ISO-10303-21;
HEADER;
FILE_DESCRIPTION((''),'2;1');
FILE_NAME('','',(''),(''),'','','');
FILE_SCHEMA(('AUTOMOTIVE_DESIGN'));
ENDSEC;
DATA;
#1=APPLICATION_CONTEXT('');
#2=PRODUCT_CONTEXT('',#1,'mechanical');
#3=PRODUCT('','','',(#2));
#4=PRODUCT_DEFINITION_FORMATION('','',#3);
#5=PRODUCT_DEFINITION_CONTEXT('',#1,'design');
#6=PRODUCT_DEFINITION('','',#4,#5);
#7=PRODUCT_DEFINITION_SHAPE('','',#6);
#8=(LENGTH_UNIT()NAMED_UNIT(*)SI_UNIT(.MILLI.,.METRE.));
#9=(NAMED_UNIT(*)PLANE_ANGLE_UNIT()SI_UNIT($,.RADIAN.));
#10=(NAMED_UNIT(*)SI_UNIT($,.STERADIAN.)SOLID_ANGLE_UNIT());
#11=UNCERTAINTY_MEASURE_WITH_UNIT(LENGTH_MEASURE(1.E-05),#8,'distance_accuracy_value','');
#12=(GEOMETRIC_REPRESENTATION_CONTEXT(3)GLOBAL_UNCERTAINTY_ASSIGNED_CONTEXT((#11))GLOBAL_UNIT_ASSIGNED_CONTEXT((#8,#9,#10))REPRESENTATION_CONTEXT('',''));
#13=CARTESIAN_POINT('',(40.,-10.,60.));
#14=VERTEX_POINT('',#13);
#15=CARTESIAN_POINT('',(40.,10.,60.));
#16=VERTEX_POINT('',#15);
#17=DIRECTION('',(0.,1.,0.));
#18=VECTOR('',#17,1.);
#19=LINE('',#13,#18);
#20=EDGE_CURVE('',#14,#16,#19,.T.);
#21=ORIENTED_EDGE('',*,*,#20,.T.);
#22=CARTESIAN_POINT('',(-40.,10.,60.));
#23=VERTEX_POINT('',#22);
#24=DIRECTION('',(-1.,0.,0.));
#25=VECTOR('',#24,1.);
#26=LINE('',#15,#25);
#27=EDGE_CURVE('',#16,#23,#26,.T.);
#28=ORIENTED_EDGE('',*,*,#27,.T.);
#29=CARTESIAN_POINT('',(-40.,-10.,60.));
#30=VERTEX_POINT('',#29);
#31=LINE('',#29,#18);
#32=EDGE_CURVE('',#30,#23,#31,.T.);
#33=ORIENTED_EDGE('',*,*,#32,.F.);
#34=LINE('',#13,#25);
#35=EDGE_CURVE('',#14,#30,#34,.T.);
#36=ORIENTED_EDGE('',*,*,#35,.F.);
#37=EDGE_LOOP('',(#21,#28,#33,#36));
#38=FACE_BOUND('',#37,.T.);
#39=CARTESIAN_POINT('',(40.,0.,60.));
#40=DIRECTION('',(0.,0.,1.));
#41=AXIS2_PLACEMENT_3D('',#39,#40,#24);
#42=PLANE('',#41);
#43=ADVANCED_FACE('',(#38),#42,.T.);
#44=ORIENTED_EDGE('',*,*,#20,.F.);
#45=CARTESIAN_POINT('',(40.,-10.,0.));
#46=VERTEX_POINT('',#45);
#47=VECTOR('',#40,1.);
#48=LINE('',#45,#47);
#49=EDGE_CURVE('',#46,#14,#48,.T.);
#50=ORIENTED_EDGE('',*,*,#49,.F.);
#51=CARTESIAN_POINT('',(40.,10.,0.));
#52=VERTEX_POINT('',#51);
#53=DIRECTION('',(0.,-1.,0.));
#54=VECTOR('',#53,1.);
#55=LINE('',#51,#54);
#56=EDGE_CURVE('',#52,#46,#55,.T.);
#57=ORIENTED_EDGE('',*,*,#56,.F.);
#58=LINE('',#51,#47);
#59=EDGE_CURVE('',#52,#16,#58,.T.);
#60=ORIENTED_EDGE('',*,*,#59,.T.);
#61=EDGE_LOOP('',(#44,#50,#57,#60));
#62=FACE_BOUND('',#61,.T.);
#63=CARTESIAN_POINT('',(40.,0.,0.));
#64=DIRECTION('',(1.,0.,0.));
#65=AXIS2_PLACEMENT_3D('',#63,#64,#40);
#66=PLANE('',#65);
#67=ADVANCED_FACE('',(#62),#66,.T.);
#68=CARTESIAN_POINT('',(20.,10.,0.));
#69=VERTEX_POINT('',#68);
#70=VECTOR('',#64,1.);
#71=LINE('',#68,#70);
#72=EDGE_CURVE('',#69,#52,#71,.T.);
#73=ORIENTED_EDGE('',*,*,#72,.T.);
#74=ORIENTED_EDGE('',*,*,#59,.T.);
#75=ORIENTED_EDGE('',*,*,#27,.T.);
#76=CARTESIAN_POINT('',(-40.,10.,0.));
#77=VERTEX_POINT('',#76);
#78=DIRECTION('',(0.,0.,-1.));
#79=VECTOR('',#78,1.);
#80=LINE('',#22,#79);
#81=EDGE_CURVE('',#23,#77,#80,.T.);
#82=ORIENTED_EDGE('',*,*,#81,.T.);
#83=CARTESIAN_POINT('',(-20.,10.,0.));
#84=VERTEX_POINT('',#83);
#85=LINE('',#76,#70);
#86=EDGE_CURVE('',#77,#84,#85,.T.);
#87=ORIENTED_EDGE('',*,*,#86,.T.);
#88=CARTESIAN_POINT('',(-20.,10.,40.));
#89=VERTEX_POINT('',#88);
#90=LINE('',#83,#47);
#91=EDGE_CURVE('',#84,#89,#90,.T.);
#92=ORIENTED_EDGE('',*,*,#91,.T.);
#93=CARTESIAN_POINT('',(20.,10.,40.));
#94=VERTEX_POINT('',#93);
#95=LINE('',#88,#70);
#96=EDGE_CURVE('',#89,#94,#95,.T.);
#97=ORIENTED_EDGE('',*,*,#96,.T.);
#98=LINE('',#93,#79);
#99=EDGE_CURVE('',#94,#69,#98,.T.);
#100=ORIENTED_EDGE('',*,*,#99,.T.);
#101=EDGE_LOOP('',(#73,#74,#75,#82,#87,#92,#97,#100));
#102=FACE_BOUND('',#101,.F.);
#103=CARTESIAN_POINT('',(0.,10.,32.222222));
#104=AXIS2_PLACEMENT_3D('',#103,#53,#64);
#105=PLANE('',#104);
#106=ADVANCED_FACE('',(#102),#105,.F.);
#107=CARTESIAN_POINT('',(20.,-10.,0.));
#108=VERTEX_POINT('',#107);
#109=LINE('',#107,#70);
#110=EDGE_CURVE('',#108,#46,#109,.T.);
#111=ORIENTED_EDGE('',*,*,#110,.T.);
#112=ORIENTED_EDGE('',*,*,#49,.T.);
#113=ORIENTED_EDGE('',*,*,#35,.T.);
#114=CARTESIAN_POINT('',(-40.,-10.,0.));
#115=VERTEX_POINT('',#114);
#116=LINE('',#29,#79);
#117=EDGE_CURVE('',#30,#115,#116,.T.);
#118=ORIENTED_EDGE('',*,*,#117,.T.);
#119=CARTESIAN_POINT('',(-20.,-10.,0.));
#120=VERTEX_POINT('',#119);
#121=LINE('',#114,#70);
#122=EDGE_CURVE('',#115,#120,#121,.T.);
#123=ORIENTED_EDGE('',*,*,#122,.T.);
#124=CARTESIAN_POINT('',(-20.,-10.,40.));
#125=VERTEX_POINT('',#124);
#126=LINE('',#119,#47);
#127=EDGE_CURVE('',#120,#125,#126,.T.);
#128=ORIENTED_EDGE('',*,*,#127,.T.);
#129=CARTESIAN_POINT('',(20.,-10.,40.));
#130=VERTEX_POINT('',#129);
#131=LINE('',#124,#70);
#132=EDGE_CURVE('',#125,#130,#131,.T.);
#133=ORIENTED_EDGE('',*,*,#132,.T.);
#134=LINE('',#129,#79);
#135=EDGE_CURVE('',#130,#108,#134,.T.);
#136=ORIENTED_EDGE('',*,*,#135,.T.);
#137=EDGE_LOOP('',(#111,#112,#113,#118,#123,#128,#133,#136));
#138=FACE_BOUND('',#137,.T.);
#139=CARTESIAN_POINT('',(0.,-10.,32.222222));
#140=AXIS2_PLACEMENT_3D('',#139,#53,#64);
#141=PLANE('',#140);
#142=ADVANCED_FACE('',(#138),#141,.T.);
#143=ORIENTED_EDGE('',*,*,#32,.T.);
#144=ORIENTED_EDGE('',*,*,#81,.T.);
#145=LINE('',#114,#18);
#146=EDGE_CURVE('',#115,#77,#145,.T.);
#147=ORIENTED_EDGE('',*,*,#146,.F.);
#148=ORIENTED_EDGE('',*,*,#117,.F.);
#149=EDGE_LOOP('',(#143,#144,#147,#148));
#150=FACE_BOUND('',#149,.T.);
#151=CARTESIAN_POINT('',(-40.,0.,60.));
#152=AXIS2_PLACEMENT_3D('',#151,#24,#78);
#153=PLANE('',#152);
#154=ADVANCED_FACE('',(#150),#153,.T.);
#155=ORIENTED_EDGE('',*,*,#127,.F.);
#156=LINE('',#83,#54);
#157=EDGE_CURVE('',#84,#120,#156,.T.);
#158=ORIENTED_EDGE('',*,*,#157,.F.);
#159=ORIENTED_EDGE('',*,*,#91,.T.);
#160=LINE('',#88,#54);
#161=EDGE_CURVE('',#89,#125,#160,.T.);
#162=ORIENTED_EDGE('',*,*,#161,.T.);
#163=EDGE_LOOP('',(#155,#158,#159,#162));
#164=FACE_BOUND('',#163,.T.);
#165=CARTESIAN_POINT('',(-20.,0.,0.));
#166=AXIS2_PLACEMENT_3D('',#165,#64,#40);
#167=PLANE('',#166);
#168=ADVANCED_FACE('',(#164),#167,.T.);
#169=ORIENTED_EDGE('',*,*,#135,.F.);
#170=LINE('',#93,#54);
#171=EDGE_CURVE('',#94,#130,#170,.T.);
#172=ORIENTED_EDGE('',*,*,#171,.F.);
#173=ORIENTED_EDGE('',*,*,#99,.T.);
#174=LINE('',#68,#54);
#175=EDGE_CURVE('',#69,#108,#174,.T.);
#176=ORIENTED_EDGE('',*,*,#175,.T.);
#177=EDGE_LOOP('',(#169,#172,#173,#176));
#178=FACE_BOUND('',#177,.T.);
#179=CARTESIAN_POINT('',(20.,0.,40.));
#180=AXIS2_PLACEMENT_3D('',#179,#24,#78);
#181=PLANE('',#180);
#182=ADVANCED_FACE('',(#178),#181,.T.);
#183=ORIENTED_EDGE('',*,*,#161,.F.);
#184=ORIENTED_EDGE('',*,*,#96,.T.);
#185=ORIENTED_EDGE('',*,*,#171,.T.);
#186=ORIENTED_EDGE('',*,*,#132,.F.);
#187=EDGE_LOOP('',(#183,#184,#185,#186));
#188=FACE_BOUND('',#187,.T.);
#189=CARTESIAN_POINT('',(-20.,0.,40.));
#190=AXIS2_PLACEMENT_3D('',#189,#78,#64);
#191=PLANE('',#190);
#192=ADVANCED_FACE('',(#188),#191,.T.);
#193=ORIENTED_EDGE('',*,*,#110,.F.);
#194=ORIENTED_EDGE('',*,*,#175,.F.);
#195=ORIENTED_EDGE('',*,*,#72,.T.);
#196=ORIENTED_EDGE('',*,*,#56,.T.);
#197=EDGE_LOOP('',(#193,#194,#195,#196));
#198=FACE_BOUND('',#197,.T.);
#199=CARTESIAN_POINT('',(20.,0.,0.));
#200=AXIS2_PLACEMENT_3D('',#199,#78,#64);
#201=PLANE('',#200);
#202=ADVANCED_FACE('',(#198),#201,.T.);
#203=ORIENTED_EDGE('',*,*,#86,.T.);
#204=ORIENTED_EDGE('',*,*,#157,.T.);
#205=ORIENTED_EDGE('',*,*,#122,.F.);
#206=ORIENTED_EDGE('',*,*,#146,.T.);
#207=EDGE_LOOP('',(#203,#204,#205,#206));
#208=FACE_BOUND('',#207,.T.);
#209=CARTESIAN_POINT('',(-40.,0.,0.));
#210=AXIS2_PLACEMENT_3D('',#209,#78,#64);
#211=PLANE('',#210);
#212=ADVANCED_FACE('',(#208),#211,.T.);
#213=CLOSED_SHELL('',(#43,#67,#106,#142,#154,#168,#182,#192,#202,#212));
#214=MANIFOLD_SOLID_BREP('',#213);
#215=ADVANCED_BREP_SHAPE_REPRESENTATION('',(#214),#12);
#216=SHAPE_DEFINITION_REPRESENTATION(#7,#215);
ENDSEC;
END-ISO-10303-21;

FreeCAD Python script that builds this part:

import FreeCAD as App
import Part
import Sketcher

doc = App.newDocument("Part")
body = doc.addObject("PartDesign::Body", "Body")

# Sketch on XZ plane
sketch1 = doc.addObject("Sketcher::SketchObject", "Sketch")
body.addObject(sketch1)
sketch1.AttachmentSupport = (doc.XZ_Plane, [""])
sketch1.MapMode = "FlatFace"
sketch1.addGeometry(Part.LineSegment(App.Vector(-40, 0, 0), App.Vector(-20, 0, 0)), False)
sketch1.addGeometry(Part.LineSegment(App.Vector(-20, 0, 0), App.Vector(-20, 40, 0)), False)
sketch1.addGeometry(Part.LineSegment(App.Vector(-20, 40, 0), App.Vector(20, 40, 0)), False)
sketch1.addGeometry(Part.LineSegment(App.Vector(20, 40, 0), App.Vector(20, 0, 0)), False)
sketch1.addGeometry(Part.LineSegment(App.Vector(20, 0, 0), App.Vector(40, 0, 0)), False)
sketch1.addGeometry(Part.LineSegment(App.Vector(40, 0, 0), App.Vector(40, 60, 0)), False)
sketch1.addGeometry(Part.LineSegment(App.Vector(40, 60, 0), App.Vector(-40, 60, 0)), False)
sketch1.addGeometry(Part.LineSegment(App.Vector(-40, 60, 0), App.Vector(-40, 0, 0)), False)
sketch1.addConstraint(Sketcher.Constraint("Coincident", 0, 2, 1, 1))
sketch1.addConstraint(Sketcher.Constraint("Coincident", 1, 2, 2, 1))
sketch1.addConstraint(Sketcher.Constraint("Coincident", 2, 2, 3, 1))
sketch1.addConstraint(Sketcher.Constraint("Coincident", 3, 2, 4, 1))
sketch1.addConstraint(Sketcher.Constraint("Coincident", 4, 2, 5, 1))
sketch1.addConstraint(Sketcher.Constraint("Coincident", 5, 2, 6, 1))
sketch1.addConstraint(Sketcher.Constraint("Coincident", 6, 2, 7, 1))
sketch1.addConstraint(Sketcher.Constraint("Coincident", 7, 2, 0, 1))
sketch1.addConstraint(Sketcher.Constraint("Horizontal", 0))
sketch1.addConstraint(Sketcher.Constraint("Vertical", 1))
sketch1.addConstraint(Sketcher.Constraint("Horizontal", 2))
sketch1.addConstraint(Sketcher.Constraint("Vertical", 3))
sketch1.addConstraint(Sketcher.Constraint("Horizontal", 4))
sketch1.addConstraint(Sketcher.Constraint("Vertical", 5))
sketch1.addConstraint(Sketcher.Constraint("Horizontal", 6))
sketch1.addConstraint(Sketcher.Constraint("Vertical", 7))
sketch1.addConstraint(Sketcher.Constraint("Symmetric", 0, 2, 3, 2, -1, 1))
sketch1.addConstraint(Sketcher.Constraint("Symmetric", 4, 2, 7, 2, -2))
sketch1.addConstraint(Sketcher.Constraint("Equal", 2, 1))
sketch1.addConstraint(Sketcher.Constraint("DistanceX", 0, 1, 0, 2, 20.0))
sketch1.addConstraint(Sketcher.Constraint("DistanceX", 2, 1, 2, 2, 40.0))
sketch1.addConstraint(Sketcher.Constraint("DistanceY", 5, 1, 5, 2, 60.0))
pad1 = doc.addObject("PartDesign::Pad", "Pad")
body.addObject(pad1)
pad1.Profile = sketch1
pad1.Length = 20
pad1.Midplane = True

doc.recompute()
